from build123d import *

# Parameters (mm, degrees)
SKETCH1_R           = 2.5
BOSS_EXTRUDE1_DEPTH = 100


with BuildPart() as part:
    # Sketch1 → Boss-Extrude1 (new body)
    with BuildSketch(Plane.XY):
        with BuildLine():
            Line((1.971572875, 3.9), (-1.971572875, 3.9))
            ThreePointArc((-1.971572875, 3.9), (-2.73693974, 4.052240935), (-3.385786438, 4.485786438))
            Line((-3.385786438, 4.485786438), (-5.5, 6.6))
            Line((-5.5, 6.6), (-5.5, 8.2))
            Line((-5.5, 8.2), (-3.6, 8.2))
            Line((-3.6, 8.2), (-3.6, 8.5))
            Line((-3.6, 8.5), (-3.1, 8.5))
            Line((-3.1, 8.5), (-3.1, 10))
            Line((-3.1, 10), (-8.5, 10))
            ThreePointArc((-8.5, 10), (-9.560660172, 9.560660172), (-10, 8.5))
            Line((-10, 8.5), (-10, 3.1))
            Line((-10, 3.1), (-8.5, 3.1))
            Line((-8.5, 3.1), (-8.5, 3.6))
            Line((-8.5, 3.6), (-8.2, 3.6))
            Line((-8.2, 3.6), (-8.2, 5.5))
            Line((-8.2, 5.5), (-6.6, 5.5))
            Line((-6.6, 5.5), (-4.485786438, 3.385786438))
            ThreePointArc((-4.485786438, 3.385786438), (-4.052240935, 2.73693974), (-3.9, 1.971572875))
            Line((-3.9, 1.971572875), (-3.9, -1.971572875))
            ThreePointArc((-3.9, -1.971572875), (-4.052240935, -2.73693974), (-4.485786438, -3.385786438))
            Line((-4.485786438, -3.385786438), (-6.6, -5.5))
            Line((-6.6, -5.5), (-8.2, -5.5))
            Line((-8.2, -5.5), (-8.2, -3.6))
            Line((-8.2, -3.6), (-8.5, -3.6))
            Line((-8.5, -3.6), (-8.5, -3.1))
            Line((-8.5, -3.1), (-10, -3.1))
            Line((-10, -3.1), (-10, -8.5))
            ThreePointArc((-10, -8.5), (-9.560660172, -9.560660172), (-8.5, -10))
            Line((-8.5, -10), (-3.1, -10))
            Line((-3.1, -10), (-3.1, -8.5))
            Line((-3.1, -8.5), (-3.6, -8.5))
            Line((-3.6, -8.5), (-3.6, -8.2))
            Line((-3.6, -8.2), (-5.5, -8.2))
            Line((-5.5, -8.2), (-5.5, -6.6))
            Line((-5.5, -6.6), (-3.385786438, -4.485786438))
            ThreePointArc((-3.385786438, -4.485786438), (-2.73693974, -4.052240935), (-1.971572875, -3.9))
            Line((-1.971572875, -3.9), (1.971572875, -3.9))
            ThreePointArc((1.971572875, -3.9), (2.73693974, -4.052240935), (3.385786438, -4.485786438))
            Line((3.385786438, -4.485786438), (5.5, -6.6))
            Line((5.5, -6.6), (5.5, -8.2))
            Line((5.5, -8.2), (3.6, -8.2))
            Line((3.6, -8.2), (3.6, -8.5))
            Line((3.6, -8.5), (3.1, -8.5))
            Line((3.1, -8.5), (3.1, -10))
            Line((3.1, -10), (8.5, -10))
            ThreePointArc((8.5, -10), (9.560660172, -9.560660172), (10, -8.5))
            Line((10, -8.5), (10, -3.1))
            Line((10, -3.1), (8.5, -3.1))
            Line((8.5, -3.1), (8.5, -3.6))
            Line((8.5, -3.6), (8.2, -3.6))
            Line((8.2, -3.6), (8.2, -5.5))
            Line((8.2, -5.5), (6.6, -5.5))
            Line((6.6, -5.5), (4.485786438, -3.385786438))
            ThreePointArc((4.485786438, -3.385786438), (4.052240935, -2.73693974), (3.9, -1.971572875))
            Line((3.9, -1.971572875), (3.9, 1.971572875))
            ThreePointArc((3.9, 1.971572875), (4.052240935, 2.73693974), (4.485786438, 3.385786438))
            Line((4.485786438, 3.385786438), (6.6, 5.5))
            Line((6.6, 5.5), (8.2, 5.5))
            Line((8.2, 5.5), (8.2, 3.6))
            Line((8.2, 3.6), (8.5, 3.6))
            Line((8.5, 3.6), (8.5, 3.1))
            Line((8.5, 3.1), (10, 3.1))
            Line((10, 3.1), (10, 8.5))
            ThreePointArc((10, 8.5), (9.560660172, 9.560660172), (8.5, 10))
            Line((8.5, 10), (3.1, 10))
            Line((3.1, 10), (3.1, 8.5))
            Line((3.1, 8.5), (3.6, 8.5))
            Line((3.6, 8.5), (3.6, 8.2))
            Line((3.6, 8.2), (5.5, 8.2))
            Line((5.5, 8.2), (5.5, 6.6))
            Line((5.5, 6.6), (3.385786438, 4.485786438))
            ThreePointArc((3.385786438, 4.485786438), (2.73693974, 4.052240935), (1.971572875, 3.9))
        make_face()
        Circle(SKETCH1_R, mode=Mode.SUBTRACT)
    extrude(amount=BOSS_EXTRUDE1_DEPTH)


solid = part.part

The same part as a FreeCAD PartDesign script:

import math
import FreeCAD as App
import Part
import Sketcher
Q = App.Units.Quantity

doc = App.newDocument("Part")
body = doc.addObject("PartDesign::Body", "Body")

# Sketch on XY plane
sketch1 = body.newObject("Sketcher::SketchObject", "Sketch")
sketch1.AttachmentSupport = (doc.getObject("XY_Plane"), [""])
sketch1.MapMode = "FlatFace"
sketch1.addGeometry([
    Part.LineSegment(App.Vector(1.971573, 3.9, 0), App.Vector(-1.971573, 3.9, 0)),  # 0
    Part.ArcOfCircle(Part.Circle(App.Vector(-1.971573, 5.9, 0), App.Vector(0, 0, 1), 2), math.radians(-135), math.radians(-90)),  # 1
    Part.LineSegment(App.Vector(-3.385786, 4.485786, 0), App.Vector(-5.5, 6.6, 0)),  # 2
    Part.LineSegment(App.Vector(-5.5, 6.6, 0), App.Vector(-5.5, 8.2, 0)),  # 3
    Part.LineSegment(App.Vector(-5.5, 8.2, 0), App.Vector(-3.6, 8.2, 0)),  # 4
    Part.LineSegment(App.Vector(-3.6, 8.2, 0), App.Vector(-3.6, 8.5, 0)),  # 5
    Part.LineSegment(App.Vector(-3.6, 8.5, 0), App.Vector(-3.1, 8.5, 0)),  # 6
    Part.LineSegment(App.Vector(-3.1, 8.5, 0), App.Vector(-3.1, 10, 0)),  # 7
    Part.LineSegment(App.Vector(-3.1, 10, 0), App.Vector(-8.5, 10, 0)),  # 8
    Part.ArcOfCircle(Part.Circle(App.Vector(-8.5, 8.5, 0), App.Vector(0, 0, 1), 1.5), math.radians(90), math.radians(180)),  # 9
    Part.LineSegment(App.Vector(-10, 8.5, 0), App.Vector(-10, 3.1, 0)),  # 10
    Part.LineSegment(App.Vector(-10, 3.1, 0), App.Vector(-8.5, 3.1, 0)),  # 11
    Part.LineSegment(App.Vector(-8.5, 3.1, 0), App.Vector(-8.5, 3.6, 0)),  # 12
    Part.LineSegment(App.Vector(-8.5, 3.6, 0), App.Vector(-8.2, 3.6, 0)),  # 13
    Part.LineSegment(App.Vector(-8.2, 3.6, 0), App.Vector(-8.2, 5.5, 0)),  # 14
    Part.LineSegment(App.Vector(-8.2, 5.5, 0), App.Vector(-6.6, 5.5, 0)),  # 15
    Part.LineSegment(App.Vector(-6.6, 5.5, 0), App.Vector(-4.485786, 3.385786, 0)),  # 16
    Part.ArcOfCircle(Part.Circle(App.Vector(-5.9, 1.971573, 0), App.Vector(0, 0, 1), 2), math.radians(0), math.radians(45)),  # 17
    Part.LineSegment(App.Vector(-3.9, 1.971573, 0), App.Vector(-3.9, -1.971573, 0)),  # 18
    Part.ArcOfCircle(Part.Circle(App.Vector(-5.9, -1.971573, 0), App.Vector(0, 0, 1), 2), math.radians(-45), math.radians(0)),  # 19
    Part.LineSegment(App.Vector(-4.485786, -3.385786, 0), App.Vector(-6.6, -5.5, 0)),  # 20
    Part.LineSegment(App.Vector(-6.6, -5.5, 0), App.Vector(-8.2, -5.5, 0)),  # 21
    Part.LineSegment(App.Vector(-8.2, -5.5, 0), App.Vector(-8.2, -3.6, 0)),  # 22
    Part.LineSegment(App.Vector(-8.2, -3.6, 0), App.Vector(-8.5, -3.6, 0)),  # 23
    Part.LineSegment(App.Vector(-8.5, -3.6, 0), App.Vector(-8.5, -3.1, 0)),  # 24
    Part.LineSegment(App.Vector(-8.5, -3.1, 0), App.Vector(-10, -3.1, 0)),  # 25
    Part.LineSegment(App.Vector(-10, -3.1, 0), App.Vector(-10, -8.5, 0)),  # 26
    Part.ArcOfCircle(Part.Circle(App.Vector(-8.5, -8.5, 0), App.Vector(0, 0, 1), 1.5), math.radians(180), math.radians(270)),  # 27
    Part.LineSegment(App.Vector(-8.5, -10, 0), App.Vector(-3.1, -10, 0)),  # 28
    Part.LineSegment(App.Vector(-3.1, -10, 0), App.Vector(-3.1, -8.5, 0)),  # 29
    Part.LineSegment(App.Vector(-3.1, -8.5, 0), App.Vector(-3.6, -8.5, 0)),  # 30
    Part.LineSegment(App.Vector(-3.6, -8.5, 0), App.Vector(-3.6, -8.2, 0)),  # 31
    Part.LineSegment(App.Vector(-3.6, -8.2, 0), App.Vector(-5.5, -8.2, 0)),  # 32
    Part.LineSegment(App.Vector(-5.5, -8.2, 0), App.Vector(-5.5, -6.6, 0)),  # 33
    Part.LineSegment(App.Vector(-5.5, -6.6, 0), App.Vector(-3.385786, -4.485786, 0)),  # 34
    Part.ArcOfCircle(Part.Circle(App.Vector(-1.971573, -5.9, 0), App.Vector(0, 0, 1), 2), math.radians(90), math.radians(135)),  # 35
    Part.LineSegment(App.Vector(-1.971573, -3.9, 0), App.Vector(1.971573, -3.9, 0)),  # 36
    Part.ArcOfCircle(Part.Circle(App.Vector(1.971573, -5.9, 0), App.Vector(0, 0, 1), 2), math.radians(45), math.radians(90)),  # 37
    Part.LineSegment(App.Vector(3.385786, -4.485786, 0), App.Vector(5.5, -6.6, 0)),  # 38
    Part.LineSegment(App.Vector(5.5, -6.6, 0), App.Vector(5.5, -8.2, 0)),  # 39
    Part.LineSegment(App.Vector(5.5, -8.2, 0), App.Vector(3.6, -8.2, 0)),  # 40
    Part.LineSegment(App.Vector(3.6, -8.2, 0), App.Vector(3.6, -8.5, 0)),  # 41
    Part.LineSegment(App.Vector(3.6, -8.5, 0), App.Vector(3.1, -8.5, 0)),  # 42
    Part.LineSegment(App.Vector(3.1, -8.5, 0), App.Vector(3.1, -10, 0)),  # 43
    Part.LineSegment(App.Vector(3.1, -10, 0), App.Vector(8.5, -10, 0)),  # 44
    Part.ArcOfCircle(Part.Circle(App.Vector(8.5, -8.5, 0), App.Vector(0, 0, 1), 1.5), math.radians(-90), math.radians(0)),  # 45
    Part.LineSegment(App.Vector(10, -8.5, 0), App.Vector(10, -3.1, 0)),  # 46
    Part.LineSegment(App.Vector(10, -3.1, 0), App.Vector(8.5, -3.1, 0)),  # 47
    Part.LineSegment(App.Vector(8.5, -3.1, 0), App.Vector(8.5, -3.6, 0)),  # 48
    Part.LineSegment(App.Vector(8.5, -3.6, 0), App.Vector(8.2, -3.6, 0)),  # 49
    Part.LineSegment(App.Vector(8.2, -3.6, 0), App.Vector(8.2, -5.5, 0)),  # 50
    Part.LineSegment(App.Vector(8.2, -5.5, 0), App.Vector(6.6, -5.5, 0)),  # 51
    Part.LineSegment(App.Vector(6.6, -5.5, 0), App.Vector(4.485786, -3.385786, 0)),  # 52
    Part.ArcOfCircle(Part.Circle(App.Vector(5.9, -1.971573, 0), App.Vector(0, 0, 1), 2), math.radians(180), math.radians(225)),  # 53
    Part.LineSegment(App.Vector(3.9, -1.971573, 0), App.Vector(3.9, 1.971573, 0)),  # 54
    Part.ArcOfCircle(Part.Circle(App.Vector(5.9, 1.971573, 0), App.Vector(0, 0, 1), 2), math.radians(135), math.radians(180)),  # 55
    Part.LineSegment(App.Vector(4.485786, 3.385786, 0), App.Vector(6.6, 5.5, 0)),  # 56
    Part.LineSegment(App.Vector(6.6, 5.5, 0), App.Vector(8.2, 5.5, 0)),  # 57
    Part.LineSegment(App.Vector(8.2, 5.5, 0), App.Vector(8.2, 3.6, 0)),  # 58
    Part.LineSegment(App.Vector(8.2, 3.6, 0), App.Vector(8.5, 3.6, 0)),  # 59
    Part.LineSegment(App.Vector(8.5, 3.6, 0), App.Vector(8.5, 3.1, 0)),  # 60
    Part.LineSegment(App.Vector(8.5, 3.1, 0), App.Vector(10, 3.1, 0)),  # 61
    Part.LineSegment(App.Vector(10, 3.1, 0), App.Vector(10, 8.5, 0)),  # 62
    Part.ArcOfCircle(Part.Circle(App.Vector(8.5, 8.5, 0), App.Vector(0, 0, 1), 1.5), math.radians(0), math.radians(90)),  # 63
    Part.LineSegment(App.Vector(8.5, 10, 0), App.Vector(3.1, 10, 0)),  # 64
    Part.LineSegment(App.Vector(3.1, 10, 0), App.Vector(3.1, 8.5, 0)),  # 65
    Part.LineSegment(App.Vector(3.1, 8.5, 0), App.Vector(3.6, 8.5, 0)),  # 66
    Part.LineSegment(App.Vector(3.6, 8.5, 0), App.Vector(3.6, 8.2, 0)),  # 67
    Part.LineSegment(App.Vector(3.6, 8.2, 0), App.Vector(5.5, 8.2, 0)),  # 68
    Part.LineSegment(App.Vector(5.5, 8.2, 0), App.Vector(5.5, 6.6, 0)),  # 69
    Part.LineSegment(App.Vector(5.5, 6.6, 0), App.Vector(3.385786, 4.485786, 0)),  # 70
    Part.ArcOfCircle(Part.Circle(App.Vector(1.971573, 5.9, 0), App.Vector(0, 0, 1), 2), math.radians(-90), math.radians(-45)),  # 71
    Part.Circle(App.Vector(0, 0, 0), App.Vector(0, 0, 1), 2.5),  # 72
], False)
sketch1.addConstraint([
    Sketcher.Constraint("Tangent", 0, 2, 1, 2),
    Sketcher.Constraint("Tangent", 1, 1, 2, 1),
    Sketcher.Constraint("Coincident", 2, 2, 3, 1),
    Sketcher.Constraint("Coincident", 3, 2, 4, 1),
    Sketcher.Constraint("Coincident", 4, 2, 5, 1),
    Sketcher.Constraint("Coincident", 5, 2, 6, 1),
    Sketcher.Constraint("Coincident", 6, 2, 7, 1),
    Sketcher.Constraint("Coincident", 7, 2, 8, 1),
    Sketcher.Constraint("Tangent", 8, 2, 9, 1),
    Sketcher.Constraint("Tangent", 9, 2, 10, 1),
    Sketcher.Constraint("Coincident", 10, 2, 11, 1),
    Sketcher.Constraint("Coincident", 11, 2, 12, 1),
    Sketcher.Constraint("Coincident", 12, 2, 13, 1),
    Sketcher.Constraint("Coincident", 13, 2, 14, 1),
    Sketcher.Constraint("Coincident", 14, 2, 15, 1),
    Sketcher.Constraint("Coincident", 15, 2, 16, 1),
    Sketcher.Constraint("Tangent", 16, 2, 17, 2),
    Sketcher.Constraint("Tangent", 17, 1, 18, 1),
    Sketcher.Constraint("Tangent", 18, 2, 19, 2),
    Sketcher.Constraint("Tangent", 19, 1, 20, 1),
    Sketcher.Constraint("Coincident", 20, 2, 21, 1),
    Sketcher.Constraint("Coincident", 21, 2, 22, 1),
    Sketcher.Constraint("Coincident", 22, 2, 23, 1),
    Sketcher.Constraint("Coincident", 23, 2, 24, 1),
    Sketcher.Constraint("Coincident", 24, 2, 25, 1),
    Sketcher.Constraint("Coincident", 25, 2, 26, 1),
    Sketcher.Constraint("Tangent", 26, 2, 27, 1),
    Sketcher.Constraint("Tangent", 27, 2, 28, 1),
    Sketcher.Constraint("Coincident", 28, 2, 29, 1),
    Sketcher.Constraint("Coincident", 29, 2, 30, 1),
    Sketcher.Constraint("Coincident", 30, 2, 31, 1),
    Sketcher.Constraint("Coincident", 31, 2, 32, 1),
    Sketcher.Constraint("Coincident", 32, 2, 33, 1),
    Sketcher.Constraint("Coincident", 33, 2, 34, 1),
    Sketcher.Constraint("Tangent", 34, 2, 35, 2),
    Sketcher.Constraint("Tangent", 35, 1, 36, 1),
    Sketcher.Constraint("Tangent", 36, 2, 37, 2),
    Sketcher.Constraint("Tangent", 37, 1, 38, 1),
    Sketcher.Constraint("Coincident", 38, 2, 39, 1),
    Sketcher.Constraint("Coincident", 39, 2, 40, 1),
    Sketcher.Constraint("Coincident", 40, 2, 41, 1),
    Sketcher.Constraint("Coincident", 41, 2, 42, 1),
    Sketcher.Constraint("Coincident", 42, 2, 43, 1),
    Sketcher.Constraint("Coincident", 43, 2, 44, 1),
    Sketcher.Constraint("Tangent", 44, 2, 45, 1),
    Sketcher.Constraint("Tangent", 45, 2, 46, 1),
    Sketcher.Constraint("Coincident", 46, 2, 47, 1),
    Sketcher.Constraint("Coincident", 47, 2, 48, 1),
    Sketcher.Constraint("Coincident", 48, 2, 49, 1),
    Sketcher.Constraint("Coincident", 49, 2, 50, 1),
    Sketcher.Constraint("Coincident", 50, 2, 51, 1),
    Sketcher.Constraint("Coincident", 51, 2, 52, 1),
    Sketcher.Constraint("Tangent", 52, 2, 53, 2),
    Sketcher.Constraint("Tangent", 53, 1, 54, 1),
    Sketcher.Constraint("Tangent", 54, 2, 55, 2),
    Sketcher.Constraint("Tangent", 55, 1, 56, 1),
    Sketcher.Constraint("Coincident", 56, 2, 57, 1),
    Sketcher.Constraint("Coincident", 57, 2, 58, 1),
    Sketcher.Constraint("Coincident", 58, 2, 59, 1),
    Sketcher.Constraint("Coincident", 59, 2, 60, 1),
    Sketcher.Constraint("Coincident", 60, 2, 61, 1),
    Sketcher.Constraint("Coincident", 61, 2, 62, 1),
    Sketcher.Constraint("Tangent", 62, 2, 63, 1),
    Sketcher.Constraint("Tangent", 63, 2, 64, 1),
    Sketcher.Constraint("Coincident", 64, 2, 65, 1),
    Sketcher.Constraint("Coincident", 65, 2, 66, 1),
    Sketcher.Constraint("Coincident", 66, 2, 67, 1),
    Sketcher.Constraint("Coincident", 67, 2, 68, 1),
    Sketcher.Constraint("Coincident", 68, 2, 69, 1),
    Sketcher.Constraint("Coincident", 69, 2, 70, 1),
    Sketcher.Constraint("Tangent", 70, 2, 71, 2),
    Sketcher.Constraint("Tangent", 71, 1, 0, 1),
    Sketcher.Constraint("Horizontal", 0),
    Sketcher.Constraint("Vertical", 3),
    Sketcher.Constraint("Horizontal", 4),
    Sketcher.Constraint("Vertical", 5),
    Sketcher.Constraint("Horizontal", 6),
    Sketcher.Constraint("Vertical", 7),
    Sketcher.Constraint("Horizontal", 8),
    Sketcher.Constraint("Vertical", 10),
    Sketcher.Constraint("Horizontal", 11),
    Sketcher.Constraint("Vertical", 12),
    Sketcher.Constraint("Horizontal", 13),
    Sketcher.Constraint("Vertical", 14),
    Sketcher.Constraint("Horizontal", 15),
    Sketcher.Constraint("Vertical", 18),
    Sketcher.Constraint("Horizontal", 21),
    Sketcher.Constraint("Vertical", 22),
    Sketcher.Constraint("Horizontal", 23),
    Sketcher.Constraint("Vertical", 24),
    Sketcher.Constraint("Horizontal", 25),
    Sketcher.Constraint("Vertical", 26),
    Sketcher.Constraint("Horizontal", 28),
    Sketcher.Constraint("Vertical", 29),
    Sketcher.Constraint("Horizontal", 30),
    Sketcher.Constraint("Vertical", 31),
    Sketcher.Constraint("Horizontal", 32),
    Sketcher.Constraint("Vertical", 33),
    Sketcher.Constraint("Horizontal", 36),
    Sketcher.Constraint("Vertical", 39),
    Sketcher.Constraint("Horizontal", 40),
    Sketcher.Constraint("Vertical", 41),
    Sketcher.Constraint("Horizontal", 42),
    Sketcher.Constraint("Vertical", 43),
    Sketcher.Constraint("Horizontal", 44),
    Sketcher.Constraint("Vertical", 46),
    Sketcher.Constraint("Horizontal", 47),
    Sketcher.Constraint("Vertical", 48),
    Sketcher.Constraint("Horizontal", 49),
    Sketcher.Constraint("Vertical", 50),
    Sketcher.Constraint("Horizontal", 51),
    Sketcher.Constraint("Vertical", 54),
    Sketcher.Constraint("Horizontal", 57),
    Sketcher.Constraint("Vertical", 58),
    Sketcher.Constraint("Horizontal", 59),
    Sketcher.Constraint("Vertical", 60),
    Sketcher.Constraint("Horizontal", 61),
    Sketcher.Constraint("Vertical", 62),
    Sketcher.Constraint("Horizontal", 64),
    Sketcher.Constraint("Vertical", 65),
    Sketcher.Constraint("Horizontal", 66),
    Sketcher.Constraint("Vertical", 67),
    Sketcher.Constraint("Horizontal", 68),
    Sketcher.Constraint("Vertical", 69),
    Sketcher.Constraint("Coincident", 72, 3, -1, 1),
    Sketcher.Constraint("Equal", 1, 17),
    Sketcher.Constraint("Equal", 17, 19),
    Sketcher.Constraint("Equal", 9, 27),
    Sketcher.Constraint("Equal", 19, 35),
    Sketcher.Constraint("Equal", 35, 37),
    Sketcher.Constraint("Equal", 27, 45),
    Sketcher.Constraint("Equal", 37, 53),
    Sketcher.Constraint("Equal", 53, 55),
    Sketcher.Constraint("Equal", 45, 63),
    Sketcher.Constraint("Equal", 55, 71),
    Sketcher.Constraint("Symmetric", 1, 3, 37, 3, -1, 1),
    Sketcher.Constraint("Symmetric", 9, 3, 45, 3, -1, 1),
    Sketcher.Constraint("Symmetric", 17, 3, 53, 3, -1, 1),
    Sketcher.Constraint("Symmetric", 27, 3, 63, 3, -1, 1),
    Sketcher.Constraint("Symmetric", 2, 2, 38, 2, -1, 1),
    Sketcher.Constraint("Symmetric", 4, 2, 40, 2, -1, 1),
    Sketcher.Constraint("Symmetric", 6, 2, 42, 2, -1, 1),
    Sketcher.Constraint("Symmetric", 11, 2, 47, 2, -1, 1),
    Sketcher.Constraint("Symmetric", 13, 2, 49, 2, -1, 1),
    Sketcher.Constraint("Symmetric", 15, 2, 51, 2, -1, 1),
    Sketcher.Constraint("Symmetric", 19, 1, 55, 1, -1, 1),
    Sketcher.Constraint("Symmetric", 21, 2, 57, 2, -1, 1),
    Sketcher.Constraint("Symmetric", 23, 2, 59, 2, -1, 1),
    Sketcher.Constraint("Symmetric", 29, 2, 65, 2, -1, 1),
    Sketcher.Constraint("Symmetric", 31, 2, 67, 2, -1, 1),
    Sketcher.Constraint("Symmetric", 33, 2, 69, 2, -1, 1),
    Sketcher.Constraint("Symmetric", 27, 3, 45, 3, -2),
    Sketcher.Constraint("Symmetric", 34, 2, 37, 1, -2),
    Sketcher.Constraint("Symmetric", 32, 2, 39, 2, -2),
    Sketcher.Constraint("Symmetric", 30, 2, 41, 2, -2),
    Sketcher.Constraint("Symmetric", 24, 2, 47, 2, -2),
    Sketcher.Constraint("Symmetric", 22, 2, 49, 2, -2),
    Sketcher.Constraint("Symmetric", 20, 2, 51, 2, -2),
    Sketcher.Constraint("Parallel", 2, 16),
    Sketcher.Constraint("Perpendicular", 16, 20),
    Sketcher.Constraint("Parallel", 20, 34),
    Sketcher.Constraint("Parallel", 56, 70),
    Sketcher.Constraint("Horizontal", 63, 3, 5, 2),
    Sketcher.Constraint("Horizontal", 11, 2, 60, 2),
    Sketcher.Constraint("Vertical", 8, 2, 11, 2),
    Sketcher.Constraint("Vertical", 7, 2, 28, 2),
    Sketcher.Constraint("Equal", 57, 3),
    Sketcher.Constraint("Equal", 59, 5),
    Sketcher.Constraint("Equal", 64, 10),
    Sketcher.Constraint("Equal", 66, 12),
    Sketcher.Constraint("Equal", 68, 14),
    Sketcher.Constraint("Equal", 36, 18),
    Sketcher.Constraint("Equal", 2, 16),
    Sketcher.Constraint("Diameter", 72, Q("5 mm")),
    Sketcher.Constraint("Radius", 1, Q("2 mm")),
    Sketcher.Constraint("Radius", 9, Q("1.5 mm")),
    Sketcher.Constraint("DistanceX", 4, 1, 4, 2, Q("1.9 mm")),
    Sketcher.Constraint("DistanceX", 6, 1, 6, 2, Q("0.5 mm")),
    Sketcher.Constraint("DistanceX", 8, 2, 8, 1, Q("5.4 mm")),
    Sketcher.Constraint("DistanceX", 13, 1, 13, 2, Q("0.3 mm")),
    Sketcher.Constraint("DistanceX", 15, 1, 15, 2, Q("1.6 mm")),
    Sketcher.Constraint("DistanceY", -1, 1, 7, 2, Q("10 mm")),
    Sketcher.Constraint("DistanceY", -1, 1, 1, 3, Q("5.9 mm")),
])
pad1 = body.newObject("PartDesign::Pad", "Pad")
pad1.Profile = sketch1
pad1.Length = 100

doc.recompute()
